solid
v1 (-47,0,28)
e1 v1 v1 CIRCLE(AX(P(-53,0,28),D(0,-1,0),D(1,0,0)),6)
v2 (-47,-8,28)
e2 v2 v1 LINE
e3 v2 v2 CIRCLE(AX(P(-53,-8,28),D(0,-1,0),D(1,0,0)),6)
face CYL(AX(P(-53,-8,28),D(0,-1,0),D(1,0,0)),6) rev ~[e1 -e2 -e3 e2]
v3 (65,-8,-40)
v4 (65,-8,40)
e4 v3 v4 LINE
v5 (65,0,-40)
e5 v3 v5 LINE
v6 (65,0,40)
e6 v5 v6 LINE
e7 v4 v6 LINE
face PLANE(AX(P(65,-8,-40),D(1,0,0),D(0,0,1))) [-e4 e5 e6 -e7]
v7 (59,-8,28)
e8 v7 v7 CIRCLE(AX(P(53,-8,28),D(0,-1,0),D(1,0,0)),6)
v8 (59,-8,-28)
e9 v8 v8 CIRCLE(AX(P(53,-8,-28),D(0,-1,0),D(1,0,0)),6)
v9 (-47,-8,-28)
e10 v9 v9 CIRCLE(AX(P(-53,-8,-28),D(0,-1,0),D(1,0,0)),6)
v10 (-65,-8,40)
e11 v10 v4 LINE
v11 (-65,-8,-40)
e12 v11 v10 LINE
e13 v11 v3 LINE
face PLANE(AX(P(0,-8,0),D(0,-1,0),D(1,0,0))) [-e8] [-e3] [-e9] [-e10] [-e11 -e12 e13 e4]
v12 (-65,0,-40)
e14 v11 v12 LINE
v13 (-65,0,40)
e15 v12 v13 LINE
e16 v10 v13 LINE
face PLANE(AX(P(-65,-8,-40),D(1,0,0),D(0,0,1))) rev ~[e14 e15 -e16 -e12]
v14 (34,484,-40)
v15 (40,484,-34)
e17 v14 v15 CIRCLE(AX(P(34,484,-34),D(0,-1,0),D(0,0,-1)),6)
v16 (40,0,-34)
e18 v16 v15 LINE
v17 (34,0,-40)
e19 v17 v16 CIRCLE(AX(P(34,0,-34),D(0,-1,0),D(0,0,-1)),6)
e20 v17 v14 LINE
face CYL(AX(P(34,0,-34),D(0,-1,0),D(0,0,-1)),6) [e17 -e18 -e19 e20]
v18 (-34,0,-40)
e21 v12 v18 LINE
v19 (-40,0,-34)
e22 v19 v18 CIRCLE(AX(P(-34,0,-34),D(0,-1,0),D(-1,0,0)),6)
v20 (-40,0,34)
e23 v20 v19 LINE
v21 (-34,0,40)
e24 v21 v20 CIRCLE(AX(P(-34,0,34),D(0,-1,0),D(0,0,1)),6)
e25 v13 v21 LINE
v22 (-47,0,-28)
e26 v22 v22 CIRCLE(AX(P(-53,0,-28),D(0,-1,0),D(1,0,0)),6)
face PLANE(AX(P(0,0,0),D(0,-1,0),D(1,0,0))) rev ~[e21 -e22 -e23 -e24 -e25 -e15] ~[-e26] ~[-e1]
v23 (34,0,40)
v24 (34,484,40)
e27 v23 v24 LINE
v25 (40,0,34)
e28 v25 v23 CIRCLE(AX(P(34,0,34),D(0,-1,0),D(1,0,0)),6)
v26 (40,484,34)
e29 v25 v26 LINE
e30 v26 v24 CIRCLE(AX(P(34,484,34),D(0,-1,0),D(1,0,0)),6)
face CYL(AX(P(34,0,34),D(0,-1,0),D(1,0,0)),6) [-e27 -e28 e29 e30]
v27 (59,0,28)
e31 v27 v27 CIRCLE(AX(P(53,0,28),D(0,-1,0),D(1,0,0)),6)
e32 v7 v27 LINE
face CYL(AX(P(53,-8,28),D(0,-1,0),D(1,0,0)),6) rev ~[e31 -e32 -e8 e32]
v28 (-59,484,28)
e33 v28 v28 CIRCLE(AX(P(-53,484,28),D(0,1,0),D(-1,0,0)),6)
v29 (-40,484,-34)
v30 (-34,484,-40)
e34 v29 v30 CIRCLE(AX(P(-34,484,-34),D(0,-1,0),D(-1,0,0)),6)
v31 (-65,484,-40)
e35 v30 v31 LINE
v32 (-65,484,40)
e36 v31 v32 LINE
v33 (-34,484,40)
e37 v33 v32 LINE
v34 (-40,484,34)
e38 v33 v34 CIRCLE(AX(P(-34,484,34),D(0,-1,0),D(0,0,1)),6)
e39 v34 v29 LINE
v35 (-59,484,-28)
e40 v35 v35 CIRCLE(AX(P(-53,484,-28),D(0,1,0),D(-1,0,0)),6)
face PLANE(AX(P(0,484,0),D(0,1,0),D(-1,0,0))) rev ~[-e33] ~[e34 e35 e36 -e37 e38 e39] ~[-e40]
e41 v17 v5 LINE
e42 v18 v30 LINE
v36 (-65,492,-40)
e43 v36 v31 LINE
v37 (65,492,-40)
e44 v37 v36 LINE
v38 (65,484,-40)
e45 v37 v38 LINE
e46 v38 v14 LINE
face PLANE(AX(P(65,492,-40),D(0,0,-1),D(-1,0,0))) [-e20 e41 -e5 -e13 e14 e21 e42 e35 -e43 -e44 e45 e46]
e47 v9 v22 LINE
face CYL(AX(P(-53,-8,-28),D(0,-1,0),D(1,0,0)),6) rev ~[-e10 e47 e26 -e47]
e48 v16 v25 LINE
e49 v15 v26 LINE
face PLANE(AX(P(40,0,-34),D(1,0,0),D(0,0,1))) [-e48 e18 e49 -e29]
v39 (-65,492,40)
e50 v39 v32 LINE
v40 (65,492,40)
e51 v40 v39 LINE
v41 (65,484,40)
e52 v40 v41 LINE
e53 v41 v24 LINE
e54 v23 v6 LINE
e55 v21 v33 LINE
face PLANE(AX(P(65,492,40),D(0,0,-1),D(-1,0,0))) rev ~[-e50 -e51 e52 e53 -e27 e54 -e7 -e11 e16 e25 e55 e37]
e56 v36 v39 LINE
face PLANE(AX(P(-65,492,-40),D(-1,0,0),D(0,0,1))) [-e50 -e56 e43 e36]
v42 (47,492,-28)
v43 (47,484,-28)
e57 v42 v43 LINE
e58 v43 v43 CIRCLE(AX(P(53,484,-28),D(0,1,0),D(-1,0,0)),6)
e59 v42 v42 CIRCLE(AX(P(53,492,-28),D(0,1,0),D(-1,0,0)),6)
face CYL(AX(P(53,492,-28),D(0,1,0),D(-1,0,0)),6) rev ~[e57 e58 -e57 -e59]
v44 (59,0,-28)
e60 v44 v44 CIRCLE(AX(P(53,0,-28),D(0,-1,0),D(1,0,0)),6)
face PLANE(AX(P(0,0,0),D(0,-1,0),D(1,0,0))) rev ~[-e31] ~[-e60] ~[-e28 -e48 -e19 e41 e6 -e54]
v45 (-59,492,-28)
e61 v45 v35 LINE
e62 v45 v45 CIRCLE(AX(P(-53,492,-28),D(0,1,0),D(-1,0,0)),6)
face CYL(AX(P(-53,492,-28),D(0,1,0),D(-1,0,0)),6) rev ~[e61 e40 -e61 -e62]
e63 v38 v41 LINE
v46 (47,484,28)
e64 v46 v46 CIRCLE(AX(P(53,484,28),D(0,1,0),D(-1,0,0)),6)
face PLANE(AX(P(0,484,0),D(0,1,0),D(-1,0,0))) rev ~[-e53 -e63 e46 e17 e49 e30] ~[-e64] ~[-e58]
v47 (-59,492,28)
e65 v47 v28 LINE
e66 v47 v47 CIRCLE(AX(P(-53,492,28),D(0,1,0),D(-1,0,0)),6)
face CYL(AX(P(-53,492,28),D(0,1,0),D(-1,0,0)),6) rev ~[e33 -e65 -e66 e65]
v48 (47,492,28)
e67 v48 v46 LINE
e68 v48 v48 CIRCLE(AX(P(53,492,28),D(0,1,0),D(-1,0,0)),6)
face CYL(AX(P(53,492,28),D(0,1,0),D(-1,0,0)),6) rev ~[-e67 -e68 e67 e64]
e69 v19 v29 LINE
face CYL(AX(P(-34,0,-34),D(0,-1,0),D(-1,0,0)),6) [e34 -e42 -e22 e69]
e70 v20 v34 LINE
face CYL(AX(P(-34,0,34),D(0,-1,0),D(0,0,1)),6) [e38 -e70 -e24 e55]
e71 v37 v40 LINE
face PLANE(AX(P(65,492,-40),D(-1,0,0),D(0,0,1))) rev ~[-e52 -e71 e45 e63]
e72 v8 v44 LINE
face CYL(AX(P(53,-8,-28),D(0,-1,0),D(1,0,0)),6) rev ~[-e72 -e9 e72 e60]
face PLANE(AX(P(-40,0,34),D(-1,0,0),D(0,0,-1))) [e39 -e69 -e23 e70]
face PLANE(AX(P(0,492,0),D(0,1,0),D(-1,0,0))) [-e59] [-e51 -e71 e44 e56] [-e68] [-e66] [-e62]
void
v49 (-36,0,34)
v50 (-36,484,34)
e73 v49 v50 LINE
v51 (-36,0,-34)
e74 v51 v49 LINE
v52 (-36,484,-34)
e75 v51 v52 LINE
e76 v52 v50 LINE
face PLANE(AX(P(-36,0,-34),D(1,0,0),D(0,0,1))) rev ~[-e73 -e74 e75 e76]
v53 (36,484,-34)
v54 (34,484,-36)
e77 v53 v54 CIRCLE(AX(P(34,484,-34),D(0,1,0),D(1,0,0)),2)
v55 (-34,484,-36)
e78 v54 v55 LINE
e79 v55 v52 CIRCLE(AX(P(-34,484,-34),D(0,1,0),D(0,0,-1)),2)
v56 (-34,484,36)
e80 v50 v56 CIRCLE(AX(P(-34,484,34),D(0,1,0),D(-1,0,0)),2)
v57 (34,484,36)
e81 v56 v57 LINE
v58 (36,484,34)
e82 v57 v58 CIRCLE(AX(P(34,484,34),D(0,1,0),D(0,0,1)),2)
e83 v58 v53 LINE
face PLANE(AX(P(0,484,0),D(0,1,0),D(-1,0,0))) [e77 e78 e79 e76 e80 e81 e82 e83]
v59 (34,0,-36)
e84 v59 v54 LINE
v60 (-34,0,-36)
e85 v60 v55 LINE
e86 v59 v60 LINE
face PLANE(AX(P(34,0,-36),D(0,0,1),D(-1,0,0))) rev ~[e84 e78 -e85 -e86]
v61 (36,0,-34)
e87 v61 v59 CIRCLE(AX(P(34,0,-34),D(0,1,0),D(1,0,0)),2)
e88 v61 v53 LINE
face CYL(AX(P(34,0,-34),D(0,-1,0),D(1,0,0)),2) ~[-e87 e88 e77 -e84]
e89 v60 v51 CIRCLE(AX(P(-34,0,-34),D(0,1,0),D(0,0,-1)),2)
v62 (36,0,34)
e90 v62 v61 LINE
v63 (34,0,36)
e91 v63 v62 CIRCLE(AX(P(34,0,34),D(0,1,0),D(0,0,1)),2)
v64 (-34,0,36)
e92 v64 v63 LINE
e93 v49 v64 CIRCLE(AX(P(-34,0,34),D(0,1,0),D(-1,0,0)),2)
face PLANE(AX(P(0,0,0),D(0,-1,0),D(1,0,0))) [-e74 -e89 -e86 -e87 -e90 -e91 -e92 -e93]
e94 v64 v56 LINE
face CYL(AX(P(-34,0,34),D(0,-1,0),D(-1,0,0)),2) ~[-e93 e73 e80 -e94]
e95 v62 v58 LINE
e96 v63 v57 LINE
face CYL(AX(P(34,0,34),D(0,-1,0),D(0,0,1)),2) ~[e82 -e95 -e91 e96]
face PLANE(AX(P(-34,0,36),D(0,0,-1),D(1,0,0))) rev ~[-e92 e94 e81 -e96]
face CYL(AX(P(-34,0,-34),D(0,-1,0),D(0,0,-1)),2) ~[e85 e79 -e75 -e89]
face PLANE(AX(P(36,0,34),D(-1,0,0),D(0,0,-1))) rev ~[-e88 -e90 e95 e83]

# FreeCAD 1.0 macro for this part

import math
import FreeCAD as App
import Part
import Sketcher
Q = App.Units.Quantity


def add_polygon(sketch, points):
    """Adds a closed chain of lines whose ends are joined by coincident constraints."""
    first, n = sketch.GeometryCount, len(points)
    for a, b in zip(points, points[1:] + points[:1]):
        sketch.addGeometry(Part.LineSegment(App.Vector(*a, 0), App.Vector(*b, 0)), False)
    for i in range(n):
        sketch.addConstraint(Sketcher.Constraint("Coincident", first + i, 2, first + (i + 1) % n, 1))

doc = App.newDocument("Part")
body = doc.addObject("PartDesign::Body", "Body")

# Sketch on XZ plane
sketch1 = body.newObject("Sketcher::SketchObject", "Sketch")
sketch1.AttachmentSupport = (doc.getObject("XZ_Plane"), [""])
sketch1.MapMode = "FlatFace"
sketch1.addGeometry(Part.ArcOfCircle(Part.Circle(App.Vector(34, 34, 0), App.Vector(0, 0, 1), 6), math.radians(0), math.radians(90)), False)
sketch1.addGeometry(Part.LineSegment(App.Vector(34, 40, 0), App.Vector(-34, 40, 0)), False)
sketch1.addGeometry(Part.ArcOfCircle(Part.Circle(App.Vector(-34, 34, 0), App.Vector(0, 0, 1), 6), math.radians(90), math.radians(180)), False)
sketch1.addGeometry(Part.LineSegment(App.Vector(-40, 34, 0), App.Vector(-40, -34, 0)), False)
sketch1.addGeometry(Part.ArcOfCircle(Part.Circle(App.Vector(-34, -34, 0), App.Vector(0, 0, 1), 6), math.radians(180), math.radians(270)), False)
sketch1.addGeometry(Part.LineSegment(App.Vector(-34, -40, 0), App.Vector(34, -40, 0)), False)
sketch1.addGeometry(Part.ArcOfCircle(Part.Circle(App.Vector(34, -34, 0), App.Vector(0, 0, 1), 6), math.radians(-90), math.radians(0)), False)
sketch1.addGeometry(Part.LineSegment(App.Vector(40, -34, 0), App.Vector(40, 34, 0)), False)
sketch1.addGeometry(Part.LineSegment(App.Vector(-36, -34, 0), App.Vector(-36, 34, 0)), False)
sketch1.addGeometry(Part.ArcOfCircle(Part.Circle(App.Vector(-34, 34, 0), App.Vector(0, 0, 1), 2), math.radians(90), math.radians(180)), False)
sketch1.addGeometry(Part.LineSegment(App.Vector(-34, 36, 0), App.Vector(34, 36, 0)), False)
sketch1.addGeometry(Part.ArcOfCircle(Part.Circle(App.Vector(34, 34, 0), App.Vector(0, 0, 1), 2), math.radians(0), math.radians(90)), False)
sketch1.addGeometry(Part.LineSegment(App.Vector(36, 34, 0), App.Vector(36, -34, 0)), False)
sketch1.addGeometry(Part.ArcOfCircle(Part.Circle(App.Vector(34, -34, 0), App.Vector(0, 0, 1), 2), math.radians(-90), math.radians(0)), False)
sketch1.addGeometry(Part.LineSegment(App.Vector(34, -36, 0), App.Vector(-34, -36, 0)), False)
sketch1.addGeometry(Part.ArcOfCircle(Part.Circle(App.Vector(-34, -34, 0), App.Vector(0, 0, 1), 2), math.radians(180), math.radians(270)), False)
sketch1.addConstraint(Sketcher.Constraint("Tangent", 0, 2, 1, 1))
sketch1.addConstraint(Sketcher.Constraint("Tangent", 1, 2, 2, 1))
sketch1.addConstraint(Sketcher.Constraint("Tangent", 2, 2, 3, 1))
sketch1.addConstraint(Sketcher.Constraint("Tangent", 3, 2, 4, 1))
sketch1.addConstraint(Sketcher.Constraint("Tangent", 4, 2, 5, 1))
sketch1.addConstraint(Sketcher.Constraint("Tangent", 5, 2, 6, 1))
sketch1.addConstraint(Sketcher.Constraint("Tangent", 6, 2, 7, 1))
sketch1.addConstraint(Sketcher.Constraint("Tangent", 7, 2, 0, 1))
sketch1.addConstraint(Sketcher.Constraint("Tangent", 8, 2, 9, 2))
sketch1.addConstraint(Sketcher.Constraint("Tangent", 9, 1, 10, 1))
sketch1.addConstraint(Sketcher.Constraint("Tangent", 10, 2, 11, 2))
sketch1.addConstraint(Sketcher.Constraint("Tangent", 11, 1, 12, 1))
sketch1.addConstraint(Sketcher.Constraint("Tangent", 12, 2, 13, 2))
sketch1.addConstraint(Sketcher.Constraint("Tangent", 13, 1, 14, 1))
sketch1.addConstraint(Sketcher.Constraint("Tangent", 14, 2, 15, 2))
sketch1.addConstraint(Sketcher.Constraint("Tangent", 15, 1, 8, 1))
sketch1.addConstraint(Sketcher.Constraint("Horizontal", 1))
sketch1.addConstraint(Sketcher.Constraint("Vertical", 3))
sketch1.addConstraint(Sketcher.Constraint("Horizontal", 5))
sketch1.addConstraint(Sketcher.Constraint("Vertical", 7))
sketch1.addConstraint(Sketcher.Constraint("Vertical", 8))
sketch1.addConstraint(Sketcher.Constraint("Horizontal", 10))
sketch1.addConstraint(Sketcher.Constraint("Vertical", 12))
sketch1.addConstraint(Sketcher.Constraint("Horizontal", 14))
sketch1.addConstraint(Sketcher.Constraint("Coincident", 9, 3, 2, 3))
sketch1.addConstraint(Sketcher.Constraint("Coincident", 11, 3, 0, 3))
sketch1.addConstraint(Sketcher.Constraint("Coincident", 13, 3, 6, 3))
sketch1.addConstraint(Sketcher.Constraint("Equal", 0, 2))
sketch1.addConstraint(Sketcher.Constraint("Equal", 2, 4))
sketch1.addConstraint(Sketcher.Constraint("Equal", 4, 6))
sketch1.addConstraint(Sketcher.Constraint("Equal", 13, 15))
sketch1.addConstraint(Sketcher.Constraint("Symmetric", 0, 3, 4, 3, -1, 1))
sketch1.addConstraint(Sketcher.Constraint("Equal", 14, 3))
sketch1.addConstraint(Sketcher.Constraint("Radius", 0, Q("6 mm")))
sketch1.addConstraint(Sketcher.Constraint("Radius", 9, Q("2 mm")))
sketch1.addConstraint(Sketcher.Constraint("DistanceX", 1, 2, 1, 1, Q("68 mm")))
pad1 = body.newObject("PartDesign::Pad", "Pad")
pad1.Profile = sketch1
pad1.Length = 484
pad1.Reversed = True

# Sketch on XZ plane
sketch2 = body.newObject("Sketcher::SketchObject", "Sketch001")
sketch2.AttachmentSupport = (doc.getObject("XZ_Plane"), [""])
sketch2.MapMode = "FlatFace"
sketch2.AttachmentOffset = App.Placement(App.Vector(0, 0, 8), App.Rotation())
add_polygon(sketch2, [(-65, 40), (-65, -40), (65, -40), (65, 40)])  # lines 0-3
sketch2.addGeometry(Part.Circle(App.Vector(-53, -28, 0), App.Vector(0, 0, 1), 6), False)  # 4
sketch2.addGeometry(Part.Circle(App.Vector(53, -28, 0), App.Vector(0, 0, 1), 6), False)  # 5
sketch2.addGeometry(Part.Circle(App.Vector(-53, 28, 0), App.Vector(0, 0, 1), 6), False)  # 6
sketch2.addGeometry(Part.Circle(App.Vector(53, 28, 0), App.Vector(0, 0, 1), 6), False)  # 7
sketch2.addConstraint(Sketcher.Constraint("Vertical", 0))
sketch2.addConstraint(Sketcher.Constraint("Horizontal", 1))
sketch2.addConstraint(Sketcher.Constraint("Vertical", 2))
sketch2.addConstraint(Sketcher.Constraint("Horizontal", 3))
sketch2.addConstraint(Sketcher.Constraint("Equal", 4, 5))
sketch2.addConstraint(Sketcher.Constraint("Equal", 5, 6))
sketch2.addConstraint(Sketcher.Constraint("Equal", 6, 7))
sketch2.addConstraint(Sketcher.Constraint("Symmetric", 5, 3, 6, 3, -1, 1))
sketch2.addConstraint(Sketcher.Constraint("Symmetric", 4, 3, 7, 3, -1, 1))
sketch2.addConstraint(Sketcher.Constraint("Symmetric", 0, 2, 2, 2, -1, 1))
sketch2.addConstraint(Sketcher.Constraint("Symmetric", 4, 3, 5, 3, -2))
sketch2.addConstraint(Sketcher.Constraint("Diameter", 4, Q("12 mm")))
sketch2.addConstraint(Sketcher.Constraint("DistanceX", 1, 1, 1, 2, Q("130 mm")))
sketch2.addConstraint(Sketcher.Constraint("DistanceY", 0, 2, 0, 1, Q("80 mm")))
sketch2.addConstraint(Sketcher.Constraint("DistanceX", 4, 3, -1, 1, Q("53 mm")))
sketch2.addConstraint(Sketcher.Constraint("DistanceY", 4, 3, -1, 1, Q("28 mm")))
pad2 = body.newObject("PartDesign::Pad", "Pad001")
pad2.Profile = sketch2
pad2.Length = 8
pad2.Reversed = True

# Sketch on XZ plane
sketch3 = body.newObject("Sketcher::SketchObject", "Sketch002")
sketch3.AttachmentSupport = (doc.getObject("XZ_Plane"), [""])
sketch3.MapMode = "FlatFace"
sketch3.AttachmentOffset = App.Placement(App.Vector(0, 0, -492), App.Rotation())
add_polygon(sketch3, [(65, 40), (65, -40), (-65, -40), (-65, 40)])  # lines 0-3
sketch3.addGeometry(Part.Circle(App.Vector(53, -28, 0), App.Vector(0, 0, 1), 6), False)  # 4
sketch3.addGeometry(Part.Circle(App.Vector(-53, -28, 0), App.Vector(0, 0, 1), 6), False)  # 5
sketch3.addGeometry(Part.Circle(App.Vector(53, 28, 0), App.Vector(0, 0, 1), 6), False)  # 6
sketch3.addGeometry(Part.Circle(App.Vector(-53, 28, 0), App.Vector(0, 0, 1), 6), False)  # 7
sketch3.addConstraint(Sketcher.Constraint("Vertical", 0))
sketch3.addConstraint(Sketcher.Constraint("Horizontal", 1))
sketch3.addConstraint(Sketcher.Constraint("Vertical", 2))
sketch3.addConstraint(Sketcher.Constraint("Horizontal", 3))
sketch3.addConstraint(Sketcher.Constraint("Equal", 4, 5))
sketch3.addConstraint(Sketcher.Constraint("Equal", 5, 6))
sketch3.addConstraint(Sketcher.Constraint("Equal", 6, 7))
sketch3.addConstraint(Sketcher.Constraint("Symmetric", 5, 3, 6, 3, -1, 1))
sketch3.addConstraint(Sketcher.Constraint("Symmetric", 4, 3, 7, 3, -1, 1))
sketch3.addConstraint(Sketcher.Constraint("Symmetric", 0, 2, 2, 2, -1, 1))
sketch3.addConstraint(Sketcher.Constraint("Symmetric", 4, 3, 5, 3, -2))
sketch3.addConstraint(Sketcher.Constraint("Diameter", 4, Q("12 mm")))
sketch3.addConstraint(Sketcher.Constraint("DistanceX", 1, 2, 1, 1, Q("130 mm")))
sketch3.addConstraint(Sketcher.Constraint("DistanceY", 0, 2, 0, 1, Q("80 mm")))
sketch3.addConstraint(Sketcher.Constraint("DistanceX", -1, 1, 4, 3, Q("53 mm")))
sketch3.addConstraint(Sketcher.Constraint("DistanceY", 4, 3, -1, 1, Q("28 mm")))
pad3 = body.newObject("PartDesign::Pad", "Pad002")
pad3.Profile = sketch3
pad3.Length = 8

doc.recompute()
